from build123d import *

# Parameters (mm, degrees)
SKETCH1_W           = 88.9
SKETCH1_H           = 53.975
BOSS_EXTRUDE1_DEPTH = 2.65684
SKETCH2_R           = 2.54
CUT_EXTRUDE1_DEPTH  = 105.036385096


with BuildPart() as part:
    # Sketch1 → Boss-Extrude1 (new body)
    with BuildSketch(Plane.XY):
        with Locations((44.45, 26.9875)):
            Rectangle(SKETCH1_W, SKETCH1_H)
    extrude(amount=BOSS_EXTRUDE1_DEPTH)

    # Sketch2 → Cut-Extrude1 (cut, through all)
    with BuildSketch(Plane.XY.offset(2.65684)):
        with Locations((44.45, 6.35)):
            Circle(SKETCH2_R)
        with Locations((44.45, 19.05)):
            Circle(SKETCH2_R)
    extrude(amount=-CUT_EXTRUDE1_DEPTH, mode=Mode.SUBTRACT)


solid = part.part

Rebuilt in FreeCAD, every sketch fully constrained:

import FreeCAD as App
import Part
import Sketcher
Q = App.Units.Quantity

doc = App.newDocument("Part")
body = doc.addObject("PartDesign::Body", "Body")

# Sketch on XY plane
sketch1 = body.newObject("Sketcher::SketchObject", "Sketch")
sketch1.AttachmentSupport = (doc.getObject("XY_Plane"), [""])
sketch1.MapMode = "FlatFace"
sketch1.addGeometry(Part.LineSegment(App.Vector(0, 54, 0), App.Vector(0, 0, 0)), False)
sketch1.addGeometry(Part.LineSegment(App.Vector(0, 0, 0), App.Vector(89, 0, 0)), False)
sketch1.addGeometry(Part.LineSegment(App.Vector(89, 0, 0), App.Vector(89, 54, 0)), False)
sketch1.addGeometry(Part.LineSegment(App.Vector(89, 54, 0), App.Vector(0, 54, 0)), False)
sketch1.addConstraint(Sketcher.Constraint("Coincident", 0, 2, 1, 1))
sketch1.addConstraint(Sketcher.Constraint("Coincident", 1, 2, 2, 1))
sketch1.addConstraint(Sketcher.Constraint("Coincident", 2, 2, 3, 1))
sketch1.addConstraint(Sketcher.Constraint("Coincident", 3, 2, 0, 1))
sketch1.addConstraint(Sketcher.Constraint("Vertical", 0))
sketch1.addConstraint(Sketcher.Constraint("Horizontal", 1))
sketch1.addConstraint(Sketcher.Constraint("Vertical", 2))
sketch1.addConstraint(Sketcher.Constraint("Horizontal", 3))
sketch1.addConstraint(Sketcher.Constraint("Coincident", 0, 2, -1, 1))
sketch1.addConstraint(Sketcher.Constraint("DistanceX", 1, 1, 1, 2, Q("3.5 in")))
sketch1.addConstraint(Sketcher.Constraint("DistanceY", 0, 2, 0, 1, Q("2.125 in")))
pad1 = body.newObject("PartDesign::Pad", "Pad")
pad1.Profile = sketch1
pad1.Length = Q("0.1046 in")

# Sketch on XY plane
sketch2 = body.newObject("Sketcher::SketchObject", "Sketch001")
sketch2.AttachmentSupport = (doc.getObject("XY_Plane"), [""])
sketch2.MapMode = "FlatFace"
sketch2.AttachmentOffset = App.Placement(App.Vector(0, 0, 0.1046 * 25.4), App.Rotation())
sketch2.addGeometry(Part.Circle(App.Vector(44.5, 6.3, 0), App.Vector(0, 0, 1), 2.5), False)
sketch2.addGeometry(Part.Circle(App.Vector(44.5, 19.1, 0), App.Vector(0, 0, 1), 2.5), False)
sketch2.addConstraint(Sketcher.Constraint("Equal", 0, 1))
sketch2.addConstraint(Sketcher.Constraint("Vertical", 0, 3, 1, 3))
sketch2.addConstraint(Sketcher.Constraint("Diameter", 0, Q("0.2 in")))
sketch2.addConstraint(Sketcher.Constraint("DistanceY", 0, 3, 1, 3, Q("0.5 in")))
sketch2.addConstraint(Sketcher.Constraint("DistanceX", -1, 1, 0, 3, Q("1.75 in")))
sketch2.addConstraint(Sketcher.Constraint("DistanceY", -1, 1, 0, 3, Q("0.25 in")))
pocket1 = body.newObject("PartDesign::Pocket", "Pocket")
pocket1.Profile = sketch2
pocket1.Type = "ThroughAll"

doc.recompute()
